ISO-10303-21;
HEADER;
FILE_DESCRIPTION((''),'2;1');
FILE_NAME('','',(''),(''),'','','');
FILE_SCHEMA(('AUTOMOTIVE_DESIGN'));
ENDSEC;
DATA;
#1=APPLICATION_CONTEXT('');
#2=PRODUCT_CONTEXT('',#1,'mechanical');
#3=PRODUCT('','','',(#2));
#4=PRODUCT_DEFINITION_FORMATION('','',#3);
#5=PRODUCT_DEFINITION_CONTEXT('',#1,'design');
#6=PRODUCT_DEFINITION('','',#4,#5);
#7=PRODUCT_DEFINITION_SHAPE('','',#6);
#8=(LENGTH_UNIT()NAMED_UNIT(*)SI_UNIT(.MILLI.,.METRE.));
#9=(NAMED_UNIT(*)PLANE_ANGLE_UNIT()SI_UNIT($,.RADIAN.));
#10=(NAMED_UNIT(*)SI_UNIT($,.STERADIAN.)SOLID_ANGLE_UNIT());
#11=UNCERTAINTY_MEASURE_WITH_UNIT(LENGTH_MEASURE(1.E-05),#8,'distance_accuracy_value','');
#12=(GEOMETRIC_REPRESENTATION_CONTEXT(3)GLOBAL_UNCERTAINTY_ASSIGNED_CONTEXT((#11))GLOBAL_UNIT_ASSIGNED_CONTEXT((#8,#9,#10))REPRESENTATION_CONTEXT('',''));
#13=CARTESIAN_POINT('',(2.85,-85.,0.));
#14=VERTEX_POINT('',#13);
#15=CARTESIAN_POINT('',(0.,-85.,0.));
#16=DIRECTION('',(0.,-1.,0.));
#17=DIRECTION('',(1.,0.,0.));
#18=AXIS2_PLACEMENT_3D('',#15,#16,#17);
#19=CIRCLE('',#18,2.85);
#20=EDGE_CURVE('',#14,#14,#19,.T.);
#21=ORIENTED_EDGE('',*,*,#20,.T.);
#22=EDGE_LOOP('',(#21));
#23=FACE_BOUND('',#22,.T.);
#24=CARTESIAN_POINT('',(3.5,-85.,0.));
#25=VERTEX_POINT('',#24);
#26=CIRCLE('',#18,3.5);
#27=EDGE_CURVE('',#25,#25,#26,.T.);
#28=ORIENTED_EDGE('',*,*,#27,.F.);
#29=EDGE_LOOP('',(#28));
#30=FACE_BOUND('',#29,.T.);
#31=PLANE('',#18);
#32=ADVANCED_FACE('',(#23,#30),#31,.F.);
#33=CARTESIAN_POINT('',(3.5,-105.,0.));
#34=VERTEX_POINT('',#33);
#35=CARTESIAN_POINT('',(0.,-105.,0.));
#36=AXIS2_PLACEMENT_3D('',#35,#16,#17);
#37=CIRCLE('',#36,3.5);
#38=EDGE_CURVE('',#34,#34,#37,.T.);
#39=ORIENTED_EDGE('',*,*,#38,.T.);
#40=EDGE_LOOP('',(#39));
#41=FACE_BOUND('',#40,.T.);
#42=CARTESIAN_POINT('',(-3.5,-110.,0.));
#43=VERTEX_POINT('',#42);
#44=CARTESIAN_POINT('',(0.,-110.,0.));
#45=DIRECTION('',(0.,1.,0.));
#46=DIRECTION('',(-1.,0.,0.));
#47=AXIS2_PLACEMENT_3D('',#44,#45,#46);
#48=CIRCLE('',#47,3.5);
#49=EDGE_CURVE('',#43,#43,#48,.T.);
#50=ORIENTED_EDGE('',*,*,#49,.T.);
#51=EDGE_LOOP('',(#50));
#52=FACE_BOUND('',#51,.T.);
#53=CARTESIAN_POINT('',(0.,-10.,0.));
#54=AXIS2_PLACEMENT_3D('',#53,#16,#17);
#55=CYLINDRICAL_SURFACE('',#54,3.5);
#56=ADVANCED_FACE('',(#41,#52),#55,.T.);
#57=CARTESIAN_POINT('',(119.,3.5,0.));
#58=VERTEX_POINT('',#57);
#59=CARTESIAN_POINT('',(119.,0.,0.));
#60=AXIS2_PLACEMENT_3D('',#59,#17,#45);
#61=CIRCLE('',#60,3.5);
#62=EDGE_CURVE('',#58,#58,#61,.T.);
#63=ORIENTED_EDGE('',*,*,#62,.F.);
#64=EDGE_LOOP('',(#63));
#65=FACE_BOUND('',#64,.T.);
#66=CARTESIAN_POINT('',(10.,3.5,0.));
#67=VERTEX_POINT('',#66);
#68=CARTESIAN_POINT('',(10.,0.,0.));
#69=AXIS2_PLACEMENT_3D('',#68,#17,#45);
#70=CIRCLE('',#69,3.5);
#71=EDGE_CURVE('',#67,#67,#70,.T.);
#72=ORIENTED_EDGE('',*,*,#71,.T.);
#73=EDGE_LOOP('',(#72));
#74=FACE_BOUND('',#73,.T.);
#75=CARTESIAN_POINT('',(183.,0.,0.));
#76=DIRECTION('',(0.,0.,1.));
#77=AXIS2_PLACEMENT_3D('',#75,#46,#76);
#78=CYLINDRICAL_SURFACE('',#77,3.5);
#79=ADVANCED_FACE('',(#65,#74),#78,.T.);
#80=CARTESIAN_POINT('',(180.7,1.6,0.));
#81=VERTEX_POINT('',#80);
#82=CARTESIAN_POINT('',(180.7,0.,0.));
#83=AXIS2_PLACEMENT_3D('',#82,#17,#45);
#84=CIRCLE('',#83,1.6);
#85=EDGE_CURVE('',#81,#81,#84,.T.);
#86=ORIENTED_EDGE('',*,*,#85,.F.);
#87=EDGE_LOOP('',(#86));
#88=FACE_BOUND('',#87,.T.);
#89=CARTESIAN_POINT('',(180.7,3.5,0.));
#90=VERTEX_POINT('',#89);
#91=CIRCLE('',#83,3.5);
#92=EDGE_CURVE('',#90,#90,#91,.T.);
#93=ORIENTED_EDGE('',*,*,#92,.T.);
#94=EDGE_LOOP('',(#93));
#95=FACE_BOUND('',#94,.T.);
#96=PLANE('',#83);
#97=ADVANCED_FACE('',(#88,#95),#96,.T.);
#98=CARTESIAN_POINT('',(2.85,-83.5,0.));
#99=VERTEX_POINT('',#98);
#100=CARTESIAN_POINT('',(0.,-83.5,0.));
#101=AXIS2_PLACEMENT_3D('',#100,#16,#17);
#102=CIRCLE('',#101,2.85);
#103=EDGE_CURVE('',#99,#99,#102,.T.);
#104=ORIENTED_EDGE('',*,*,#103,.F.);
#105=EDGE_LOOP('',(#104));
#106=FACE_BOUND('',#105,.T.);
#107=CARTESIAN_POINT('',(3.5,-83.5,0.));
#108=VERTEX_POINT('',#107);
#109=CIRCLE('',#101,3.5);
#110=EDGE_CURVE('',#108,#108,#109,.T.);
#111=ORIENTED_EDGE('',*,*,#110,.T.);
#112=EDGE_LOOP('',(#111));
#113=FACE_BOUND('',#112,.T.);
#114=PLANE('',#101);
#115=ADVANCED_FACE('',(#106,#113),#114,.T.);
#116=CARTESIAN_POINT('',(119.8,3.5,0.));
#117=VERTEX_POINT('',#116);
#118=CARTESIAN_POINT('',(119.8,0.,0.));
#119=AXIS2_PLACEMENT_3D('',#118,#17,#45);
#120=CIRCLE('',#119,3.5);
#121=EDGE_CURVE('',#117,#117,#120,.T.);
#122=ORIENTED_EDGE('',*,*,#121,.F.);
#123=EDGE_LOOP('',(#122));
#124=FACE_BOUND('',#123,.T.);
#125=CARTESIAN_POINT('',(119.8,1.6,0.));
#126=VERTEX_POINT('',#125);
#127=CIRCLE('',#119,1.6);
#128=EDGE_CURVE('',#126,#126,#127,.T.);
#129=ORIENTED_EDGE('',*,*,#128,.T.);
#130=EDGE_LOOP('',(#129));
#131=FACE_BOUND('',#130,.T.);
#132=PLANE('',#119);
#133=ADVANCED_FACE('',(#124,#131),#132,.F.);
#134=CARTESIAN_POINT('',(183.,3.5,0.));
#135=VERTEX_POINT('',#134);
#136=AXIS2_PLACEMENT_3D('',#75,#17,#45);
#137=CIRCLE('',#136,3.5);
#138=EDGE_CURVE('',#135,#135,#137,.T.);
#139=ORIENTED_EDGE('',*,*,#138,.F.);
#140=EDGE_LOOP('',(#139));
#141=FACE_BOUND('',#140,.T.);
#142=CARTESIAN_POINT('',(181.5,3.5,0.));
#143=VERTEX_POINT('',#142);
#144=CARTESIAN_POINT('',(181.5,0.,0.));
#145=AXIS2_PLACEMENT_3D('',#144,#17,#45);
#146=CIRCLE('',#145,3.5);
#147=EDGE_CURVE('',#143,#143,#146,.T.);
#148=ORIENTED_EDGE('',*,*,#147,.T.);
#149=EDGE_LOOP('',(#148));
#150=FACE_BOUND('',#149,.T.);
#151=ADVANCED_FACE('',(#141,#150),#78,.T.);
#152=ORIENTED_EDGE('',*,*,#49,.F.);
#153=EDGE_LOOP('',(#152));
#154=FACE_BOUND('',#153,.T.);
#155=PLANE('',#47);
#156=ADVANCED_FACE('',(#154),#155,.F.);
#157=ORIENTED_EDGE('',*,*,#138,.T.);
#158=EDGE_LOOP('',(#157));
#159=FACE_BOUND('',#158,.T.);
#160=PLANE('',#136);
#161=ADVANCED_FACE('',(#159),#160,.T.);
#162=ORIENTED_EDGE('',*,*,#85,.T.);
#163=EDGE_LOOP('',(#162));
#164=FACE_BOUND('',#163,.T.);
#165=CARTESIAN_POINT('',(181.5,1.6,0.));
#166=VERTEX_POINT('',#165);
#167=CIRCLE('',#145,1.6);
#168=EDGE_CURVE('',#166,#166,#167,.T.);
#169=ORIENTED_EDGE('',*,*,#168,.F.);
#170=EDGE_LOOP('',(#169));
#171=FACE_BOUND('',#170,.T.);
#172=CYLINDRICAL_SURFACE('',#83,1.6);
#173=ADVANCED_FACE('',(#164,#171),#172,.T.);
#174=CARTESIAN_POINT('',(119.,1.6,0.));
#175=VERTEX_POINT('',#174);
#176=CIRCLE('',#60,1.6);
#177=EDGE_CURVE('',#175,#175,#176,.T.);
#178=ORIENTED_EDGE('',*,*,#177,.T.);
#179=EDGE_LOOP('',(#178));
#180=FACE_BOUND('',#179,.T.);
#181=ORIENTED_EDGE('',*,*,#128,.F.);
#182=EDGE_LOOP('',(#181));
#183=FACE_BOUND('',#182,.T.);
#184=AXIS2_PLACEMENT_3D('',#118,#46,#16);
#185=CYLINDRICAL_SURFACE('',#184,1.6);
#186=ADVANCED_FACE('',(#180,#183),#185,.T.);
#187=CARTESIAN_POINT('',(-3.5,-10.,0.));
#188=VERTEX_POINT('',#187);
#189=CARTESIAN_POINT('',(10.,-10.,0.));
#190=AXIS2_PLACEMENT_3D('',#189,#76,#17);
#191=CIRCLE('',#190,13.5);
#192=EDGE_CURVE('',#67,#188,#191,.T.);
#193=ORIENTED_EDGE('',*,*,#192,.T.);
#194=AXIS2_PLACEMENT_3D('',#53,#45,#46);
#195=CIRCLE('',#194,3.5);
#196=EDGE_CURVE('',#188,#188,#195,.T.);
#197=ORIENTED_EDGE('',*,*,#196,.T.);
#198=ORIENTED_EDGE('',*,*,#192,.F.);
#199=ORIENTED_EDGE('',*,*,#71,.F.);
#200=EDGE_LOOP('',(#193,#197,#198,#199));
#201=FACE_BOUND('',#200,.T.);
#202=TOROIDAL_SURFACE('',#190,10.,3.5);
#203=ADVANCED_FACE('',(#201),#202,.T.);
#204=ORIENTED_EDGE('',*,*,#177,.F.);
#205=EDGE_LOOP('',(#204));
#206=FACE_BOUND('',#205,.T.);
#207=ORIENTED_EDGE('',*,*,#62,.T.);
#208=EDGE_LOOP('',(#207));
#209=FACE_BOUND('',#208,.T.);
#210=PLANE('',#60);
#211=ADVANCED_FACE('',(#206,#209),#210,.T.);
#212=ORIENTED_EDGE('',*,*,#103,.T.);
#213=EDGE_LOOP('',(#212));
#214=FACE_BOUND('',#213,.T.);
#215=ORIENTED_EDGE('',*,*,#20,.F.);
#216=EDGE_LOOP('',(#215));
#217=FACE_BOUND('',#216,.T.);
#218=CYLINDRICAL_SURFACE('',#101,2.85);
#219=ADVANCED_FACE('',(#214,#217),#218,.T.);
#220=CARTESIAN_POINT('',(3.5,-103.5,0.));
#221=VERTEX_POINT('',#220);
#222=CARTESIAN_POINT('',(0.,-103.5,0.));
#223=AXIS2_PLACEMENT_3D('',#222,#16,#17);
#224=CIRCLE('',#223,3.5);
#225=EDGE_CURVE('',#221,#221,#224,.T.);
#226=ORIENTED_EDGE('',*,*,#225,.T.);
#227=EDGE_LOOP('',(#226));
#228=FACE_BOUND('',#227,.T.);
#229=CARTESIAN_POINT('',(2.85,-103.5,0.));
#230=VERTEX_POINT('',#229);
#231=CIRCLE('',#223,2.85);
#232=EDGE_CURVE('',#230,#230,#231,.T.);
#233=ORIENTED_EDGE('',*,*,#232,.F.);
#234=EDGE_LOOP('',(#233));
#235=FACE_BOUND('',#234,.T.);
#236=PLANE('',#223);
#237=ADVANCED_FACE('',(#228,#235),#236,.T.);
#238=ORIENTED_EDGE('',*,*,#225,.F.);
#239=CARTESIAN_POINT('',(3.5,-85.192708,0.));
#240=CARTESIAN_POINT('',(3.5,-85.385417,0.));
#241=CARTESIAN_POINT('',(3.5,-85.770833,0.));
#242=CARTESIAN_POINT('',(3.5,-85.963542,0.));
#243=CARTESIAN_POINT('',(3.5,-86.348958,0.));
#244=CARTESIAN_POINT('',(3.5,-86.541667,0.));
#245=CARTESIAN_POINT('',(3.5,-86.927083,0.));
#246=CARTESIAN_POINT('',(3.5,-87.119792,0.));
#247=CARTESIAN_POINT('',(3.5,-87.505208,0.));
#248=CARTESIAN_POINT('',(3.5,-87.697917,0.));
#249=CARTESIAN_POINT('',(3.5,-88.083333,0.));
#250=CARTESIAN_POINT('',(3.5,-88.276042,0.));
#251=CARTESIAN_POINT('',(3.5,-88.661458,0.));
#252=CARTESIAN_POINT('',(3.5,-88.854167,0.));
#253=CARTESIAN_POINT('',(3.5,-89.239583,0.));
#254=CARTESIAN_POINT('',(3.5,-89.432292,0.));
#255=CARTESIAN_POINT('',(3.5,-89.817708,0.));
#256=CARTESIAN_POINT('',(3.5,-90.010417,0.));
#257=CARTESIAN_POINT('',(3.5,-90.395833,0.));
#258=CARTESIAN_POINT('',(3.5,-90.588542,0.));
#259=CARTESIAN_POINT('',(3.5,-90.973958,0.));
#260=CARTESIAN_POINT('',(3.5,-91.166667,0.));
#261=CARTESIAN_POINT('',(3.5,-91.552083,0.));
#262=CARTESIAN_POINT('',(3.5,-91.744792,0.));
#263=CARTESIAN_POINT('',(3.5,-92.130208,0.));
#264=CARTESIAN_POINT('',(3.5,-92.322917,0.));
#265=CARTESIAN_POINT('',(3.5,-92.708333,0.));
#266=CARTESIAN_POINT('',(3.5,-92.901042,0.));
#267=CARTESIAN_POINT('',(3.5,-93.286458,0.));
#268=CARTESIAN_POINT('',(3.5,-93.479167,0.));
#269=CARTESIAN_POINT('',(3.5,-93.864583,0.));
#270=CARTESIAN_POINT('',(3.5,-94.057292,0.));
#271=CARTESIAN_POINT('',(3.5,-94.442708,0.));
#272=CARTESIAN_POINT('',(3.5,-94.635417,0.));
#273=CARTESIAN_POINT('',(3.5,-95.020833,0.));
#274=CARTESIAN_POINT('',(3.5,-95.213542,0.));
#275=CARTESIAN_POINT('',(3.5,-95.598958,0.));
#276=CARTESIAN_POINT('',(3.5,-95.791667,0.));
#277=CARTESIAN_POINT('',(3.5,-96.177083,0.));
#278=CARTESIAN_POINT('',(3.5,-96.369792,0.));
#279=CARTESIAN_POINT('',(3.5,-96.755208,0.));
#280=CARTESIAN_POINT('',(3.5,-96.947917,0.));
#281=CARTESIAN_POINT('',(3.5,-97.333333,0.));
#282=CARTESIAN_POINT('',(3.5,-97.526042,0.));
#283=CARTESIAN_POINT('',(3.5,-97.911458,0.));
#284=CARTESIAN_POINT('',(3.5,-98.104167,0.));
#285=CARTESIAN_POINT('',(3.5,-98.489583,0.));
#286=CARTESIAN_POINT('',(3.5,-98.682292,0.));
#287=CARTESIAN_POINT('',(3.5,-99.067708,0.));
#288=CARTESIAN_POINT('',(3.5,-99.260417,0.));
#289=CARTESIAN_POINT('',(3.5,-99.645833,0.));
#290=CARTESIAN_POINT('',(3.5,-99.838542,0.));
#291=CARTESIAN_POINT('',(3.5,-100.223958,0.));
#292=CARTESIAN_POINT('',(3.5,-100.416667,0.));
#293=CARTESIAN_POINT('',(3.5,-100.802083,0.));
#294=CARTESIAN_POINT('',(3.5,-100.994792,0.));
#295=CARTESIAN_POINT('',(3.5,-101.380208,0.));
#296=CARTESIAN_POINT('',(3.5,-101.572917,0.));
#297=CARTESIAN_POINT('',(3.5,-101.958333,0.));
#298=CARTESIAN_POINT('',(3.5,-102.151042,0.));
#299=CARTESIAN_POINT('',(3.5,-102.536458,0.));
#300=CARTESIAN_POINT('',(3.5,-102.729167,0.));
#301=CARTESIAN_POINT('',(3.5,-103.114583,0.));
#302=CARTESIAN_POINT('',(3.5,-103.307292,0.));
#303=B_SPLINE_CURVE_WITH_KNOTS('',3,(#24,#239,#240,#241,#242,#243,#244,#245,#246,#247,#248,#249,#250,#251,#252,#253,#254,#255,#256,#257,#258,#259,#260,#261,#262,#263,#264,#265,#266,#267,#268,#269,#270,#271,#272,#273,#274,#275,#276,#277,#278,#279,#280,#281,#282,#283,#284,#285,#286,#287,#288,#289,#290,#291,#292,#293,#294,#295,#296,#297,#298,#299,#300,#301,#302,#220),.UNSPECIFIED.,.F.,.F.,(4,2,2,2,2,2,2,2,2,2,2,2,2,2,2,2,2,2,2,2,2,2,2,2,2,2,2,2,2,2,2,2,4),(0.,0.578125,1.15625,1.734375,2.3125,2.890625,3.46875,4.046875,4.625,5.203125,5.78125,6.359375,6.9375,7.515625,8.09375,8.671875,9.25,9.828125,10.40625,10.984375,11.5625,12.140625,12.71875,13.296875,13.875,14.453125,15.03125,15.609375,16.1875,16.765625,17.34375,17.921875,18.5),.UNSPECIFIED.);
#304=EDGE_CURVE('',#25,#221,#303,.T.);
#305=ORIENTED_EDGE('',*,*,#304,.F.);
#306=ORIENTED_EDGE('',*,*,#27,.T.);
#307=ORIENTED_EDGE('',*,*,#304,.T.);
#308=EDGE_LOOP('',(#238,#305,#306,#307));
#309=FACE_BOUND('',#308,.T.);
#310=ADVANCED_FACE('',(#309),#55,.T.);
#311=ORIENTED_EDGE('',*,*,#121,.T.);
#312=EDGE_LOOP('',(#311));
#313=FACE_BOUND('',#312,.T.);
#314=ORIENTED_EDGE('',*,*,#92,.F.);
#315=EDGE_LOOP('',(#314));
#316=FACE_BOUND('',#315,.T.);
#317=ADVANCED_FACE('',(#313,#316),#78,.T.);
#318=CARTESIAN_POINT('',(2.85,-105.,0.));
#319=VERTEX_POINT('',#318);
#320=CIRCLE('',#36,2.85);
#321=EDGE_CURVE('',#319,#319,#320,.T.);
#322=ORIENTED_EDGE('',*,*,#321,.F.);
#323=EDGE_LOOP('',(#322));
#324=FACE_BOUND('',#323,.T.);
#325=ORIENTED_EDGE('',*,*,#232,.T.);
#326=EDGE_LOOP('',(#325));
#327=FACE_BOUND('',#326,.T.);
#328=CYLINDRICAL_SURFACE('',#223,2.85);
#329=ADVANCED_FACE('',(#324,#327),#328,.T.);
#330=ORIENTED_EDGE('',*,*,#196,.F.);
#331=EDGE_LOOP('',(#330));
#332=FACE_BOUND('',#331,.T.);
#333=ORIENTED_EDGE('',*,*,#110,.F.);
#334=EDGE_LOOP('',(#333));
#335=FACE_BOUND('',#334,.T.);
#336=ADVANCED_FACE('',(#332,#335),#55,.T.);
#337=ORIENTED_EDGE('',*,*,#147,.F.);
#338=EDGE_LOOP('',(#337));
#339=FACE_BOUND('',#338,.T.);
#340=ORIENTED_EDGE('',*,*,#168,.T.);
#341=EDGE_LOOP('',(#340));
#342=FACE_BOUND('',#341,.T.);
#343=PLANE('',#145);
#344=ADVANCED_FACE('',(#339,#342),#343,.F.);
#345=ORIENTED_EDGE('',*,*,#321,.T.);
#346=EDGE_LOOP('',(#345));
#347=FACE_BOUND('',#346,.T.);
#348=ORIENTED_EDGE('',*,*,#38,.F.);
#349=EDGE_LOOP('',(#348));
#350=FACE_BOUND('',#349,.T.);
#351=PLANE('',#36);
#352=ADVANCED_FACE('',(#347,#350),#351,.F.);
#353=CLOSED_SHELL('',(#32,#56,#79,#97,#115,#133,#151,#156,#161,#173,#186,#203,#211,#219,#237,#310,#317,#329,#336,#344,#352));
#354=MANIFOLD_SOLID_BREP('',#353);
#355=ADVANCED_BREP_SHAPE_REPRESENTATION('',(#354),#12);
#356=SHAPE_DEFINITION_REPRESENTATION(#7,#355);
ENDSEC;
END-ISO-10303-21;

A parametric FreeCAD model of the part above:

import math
import FreeCAD as App
import Part
import Sketcher
Q = App.Units.Quantity

doc = App.newDocument("Part")
body = doc.addObject("PartDesign::Body", "Body")

# Sketch on YZ plane
sketch1 = doc.addObject("Sketcher::SketchObject", "Sketch")
body.addObject(sketch1)
sketch1.AttachmentSupport = (doc.YZ_Plane, [""])
sketch1.MapMode = "FlatFace"
sketch1.AttachmentOffset = App.Placement(App.Vector(0, 0, 183), App.Rotation())
sketch1.addGeometry(Part.Circle(App.Vector(0, 0, 0), App.Vector(0, 0, 1), 3.5), False)
sketch1.addConstraint(Sketcher.Constraint("Coincident", 0, 3, -1, 1))
sketch1.addConstraint(Sketcher.Constraint("Diameter", 0, Q("7 mm")))

# Sketch on XY plane
sketch2 = doc.addObject("Sketcher::SketchObject", "Sketch001")
body.addObject(sketch2)
sketch2.AttachmentSupport = (doc.XY_Plane, [""])
sketch2.MapMode = "FlatFace"
sketch2.addGeometry(Part.LineSegment(App.Vector(183, 0, 0), App.Vector(10, 0, 0)), False)
sketch2.addGeometry(Part.ArcOfCircle(Part.Circle(App.Vector(10, -10, 0), App.Vector(0, 0, 1), 10), math.radians(90), math.radians(180)), False)
sketch2.addGeometry(Part.LineSegment(App.Vector(0, -10, 0), App.Vector(0, -110, 0)), False)
sketch2.addConstraint(Sketcher.Constraint("Tangent", 0, 2, 1, 1))
sketch2.addConstraint(Sketcher.Constraint("Tangent", 1, 2, 2, 1))
sketch2.addConstraint(Sketcher.Constraint("Horizontal", 0))
sketch2.addConstraint(Sketcher.Constraint("Vertical", 2))
sketch2.addConstraint(Sketcher.Constraint("PointOnObject", 0, 1, -1))
sketch2.addConstraint(Sketcher.Constraint("PointOnObject", 1, 2, -2))
sketch2.addConstraint(Sketcher.Constraint("Radius", 1, Q("10 mm")))
sketch2.addConstraint(Sketcher.Constraint("DistanceX", 0, 2, 0, 1, Q("173 mm")))
sketch2.addConstraint(Sketcher.Constraint("DistanceY", 2, 2, 2, 1, Q("100 mm")))
doc.recompute()

additivepipe = doc.addObject("PartDesign::AdditivePipe", "AdditivePipe")
body.addObject(additivepipe)
additivepipe.Profile = sketch1
additivepipe.Spine = (sketch2, ["Edge1", "Edge2", "Edge3"])

# Sketch on XZ plane
sketch3 = doc.addObject("Sketcher::SketchObject", "Sketch002")
body.addObject(sketch3)
sketch3.AttachmentSupport = (doc.XZ_Plane, [""])
sketch3.MapMode = "FlatFace"
sketch3.AttachmentOffset = App.Placement(App.Vector(0, 0, 105), App.Rotation())
sketch3.addGeometry(Part.Circle(App.Vector(0, 0, 0), App.Vector(0, 0, 1), 4), False)
sketch3.addGeometry(Part.Circle(App.Vector(0, 0, 0), App.Vector(0, 0, 1), 2.9), False)
sketch3.addConstraint(Sketcher.Constraint("Coincident", 0, 3, -1, 1))
sketch3.addConstraint(Sketcher.Constraint("Coincident", 1, 3, -1, 1))
sketch3.addConstraint(Sketcher.Constraint("Diameter", 0, Q("8 mm")))
sketch3.addConstraint(Sketcher.Constraint("Diameter", 1, Q("5.7 mm")))
pocket1 = doc.addObject("PartDesign::Pocket", "Pocket")
body.addObject(pocket1)
pocket1.Profile = sketch3
pocket1.Length = 1.5

# Sketch on XZ plane
sketch4 = doc.addObject("Sketcher::SketchObject", "Sketch003")
body.addObject(sketch4)
sketch4.AttachmentSupport = (doc.XZ_Plane, [""])
sketch4.MapMode = "FlatFace"
sketch4.AttachmentOffset = App.Placement(App.Vector(0, 0, 85), App.Rotation())
sketch4.addGeometry(Part.Circle(App.Vector(0, 0, 0), App.Vector(0, 0, 1), 4), False)
sketch4.addGeometry(Part.Circle(App.Vector(0, 0, 0), App.Vector(0, 0, 1), 2.9), False)
sketch4.addConstraint(Sketcher.Constraint("Coincident", 0, 3, -1, 1))
sketch4.addConstraint(Sketcher.Constraint("Coincident", 1, 3, -1, 1))
sketch4.addConstraint(Sketcher.Constraint("Diameter", 0, Q("8 mm")))
sketch4.addConstraint(Sketcher.Constraint("Diameter", 1, Q("5.7 mm")))
pocket2 = doc.addObject("PartDesign::Pocket", "Pocket001")
body.addObject(pocket2)
pocket2.Profile = sketch4
pocket2.Length = 1.5

# Sketch on YZ plane
sketch5 = doc.addObject("Sketcher::SketchObject", "Sketch004")
body.addObject(sketch5)
sketch5.AttachmentSupport = (doc.YZ_Plane, [""])
sketch5.MapMode = "FlatFace"
sketch5.AttachmentOffset = App.Placement(App.Vector(0, 0, 181.5), App.Rotation())
sketch5.addGeometry(Part.Circle(App.Vector(0, 0, 0), App.Vector(0, 0, 1), 4), False)
sketch5.addGeometry(Part.Circle(App.Vector(0, 0, 0), App.Vector(0, 0, 1), 1.6), False)
sketch5.addConstraint(Sketcher.Constraint("Coincident", 0, 3, -1, 1))
sketch5.addConstraint(Sketcher.Constraint("Coincident", 1, 3, -1, 1))
sketch5.addConstraint(Sketcher.Constraint("Diameter", 0, Q("8 mm")))
sketch5.addConstraint(Sketcher.Constraint("Diameter", 1, Q("3.2 mm")))
pocket3 = doc.addObject("PartDesign::Pocket", "Pocket002")
body.addObject(pocket3)
pocket3.Profile = sketch5
pocket3.Length = 0.8

# Sketch on YZ plane
sketch6 = doc.addObject("Sketcher::SketchObject", "Sketch005")
body.addObject(sketch6)
sketch6.AttachmentSupport = (doc.YZ_Plane, [""])
sketch6.MapMode = "FlatFace"
sketch6.AttachmentOffset = App.Placement(App.Vector(0, 0, 119.8), App.Rotation())
sketch6.addGeometry(Part.Circle(App.Vector(0, 0, 0), App.Vector(0, 0, 1), 4), False)
sketch6.addGeometry(Part.Circle(App.Vector(0, 0, 0), App.Vector(0, 0, 1), 1.6), False)
sketch6.addConstraint(Sketcher.Constraint("Coincident", 0, 3, -1, 1))
sketch6.addConstraint(Sketcher.Constraint("Coincident", 1, 3, -1, 1))
sketch6.addConstraint(Sketcher.Constraint("Diameter", 0, Q("8 mm")))
sketch6.addConstraint(Sketcher.Constraint("Diameter", 1, Q("3.2 mm")))
pocket4 = doc.addObject("PartDesign::Pocket", "Pocket003")
body.addObject(pocket4)
pocket4.Profile = sketch6
pocket4.Length = 0.8

doc.recompute()
